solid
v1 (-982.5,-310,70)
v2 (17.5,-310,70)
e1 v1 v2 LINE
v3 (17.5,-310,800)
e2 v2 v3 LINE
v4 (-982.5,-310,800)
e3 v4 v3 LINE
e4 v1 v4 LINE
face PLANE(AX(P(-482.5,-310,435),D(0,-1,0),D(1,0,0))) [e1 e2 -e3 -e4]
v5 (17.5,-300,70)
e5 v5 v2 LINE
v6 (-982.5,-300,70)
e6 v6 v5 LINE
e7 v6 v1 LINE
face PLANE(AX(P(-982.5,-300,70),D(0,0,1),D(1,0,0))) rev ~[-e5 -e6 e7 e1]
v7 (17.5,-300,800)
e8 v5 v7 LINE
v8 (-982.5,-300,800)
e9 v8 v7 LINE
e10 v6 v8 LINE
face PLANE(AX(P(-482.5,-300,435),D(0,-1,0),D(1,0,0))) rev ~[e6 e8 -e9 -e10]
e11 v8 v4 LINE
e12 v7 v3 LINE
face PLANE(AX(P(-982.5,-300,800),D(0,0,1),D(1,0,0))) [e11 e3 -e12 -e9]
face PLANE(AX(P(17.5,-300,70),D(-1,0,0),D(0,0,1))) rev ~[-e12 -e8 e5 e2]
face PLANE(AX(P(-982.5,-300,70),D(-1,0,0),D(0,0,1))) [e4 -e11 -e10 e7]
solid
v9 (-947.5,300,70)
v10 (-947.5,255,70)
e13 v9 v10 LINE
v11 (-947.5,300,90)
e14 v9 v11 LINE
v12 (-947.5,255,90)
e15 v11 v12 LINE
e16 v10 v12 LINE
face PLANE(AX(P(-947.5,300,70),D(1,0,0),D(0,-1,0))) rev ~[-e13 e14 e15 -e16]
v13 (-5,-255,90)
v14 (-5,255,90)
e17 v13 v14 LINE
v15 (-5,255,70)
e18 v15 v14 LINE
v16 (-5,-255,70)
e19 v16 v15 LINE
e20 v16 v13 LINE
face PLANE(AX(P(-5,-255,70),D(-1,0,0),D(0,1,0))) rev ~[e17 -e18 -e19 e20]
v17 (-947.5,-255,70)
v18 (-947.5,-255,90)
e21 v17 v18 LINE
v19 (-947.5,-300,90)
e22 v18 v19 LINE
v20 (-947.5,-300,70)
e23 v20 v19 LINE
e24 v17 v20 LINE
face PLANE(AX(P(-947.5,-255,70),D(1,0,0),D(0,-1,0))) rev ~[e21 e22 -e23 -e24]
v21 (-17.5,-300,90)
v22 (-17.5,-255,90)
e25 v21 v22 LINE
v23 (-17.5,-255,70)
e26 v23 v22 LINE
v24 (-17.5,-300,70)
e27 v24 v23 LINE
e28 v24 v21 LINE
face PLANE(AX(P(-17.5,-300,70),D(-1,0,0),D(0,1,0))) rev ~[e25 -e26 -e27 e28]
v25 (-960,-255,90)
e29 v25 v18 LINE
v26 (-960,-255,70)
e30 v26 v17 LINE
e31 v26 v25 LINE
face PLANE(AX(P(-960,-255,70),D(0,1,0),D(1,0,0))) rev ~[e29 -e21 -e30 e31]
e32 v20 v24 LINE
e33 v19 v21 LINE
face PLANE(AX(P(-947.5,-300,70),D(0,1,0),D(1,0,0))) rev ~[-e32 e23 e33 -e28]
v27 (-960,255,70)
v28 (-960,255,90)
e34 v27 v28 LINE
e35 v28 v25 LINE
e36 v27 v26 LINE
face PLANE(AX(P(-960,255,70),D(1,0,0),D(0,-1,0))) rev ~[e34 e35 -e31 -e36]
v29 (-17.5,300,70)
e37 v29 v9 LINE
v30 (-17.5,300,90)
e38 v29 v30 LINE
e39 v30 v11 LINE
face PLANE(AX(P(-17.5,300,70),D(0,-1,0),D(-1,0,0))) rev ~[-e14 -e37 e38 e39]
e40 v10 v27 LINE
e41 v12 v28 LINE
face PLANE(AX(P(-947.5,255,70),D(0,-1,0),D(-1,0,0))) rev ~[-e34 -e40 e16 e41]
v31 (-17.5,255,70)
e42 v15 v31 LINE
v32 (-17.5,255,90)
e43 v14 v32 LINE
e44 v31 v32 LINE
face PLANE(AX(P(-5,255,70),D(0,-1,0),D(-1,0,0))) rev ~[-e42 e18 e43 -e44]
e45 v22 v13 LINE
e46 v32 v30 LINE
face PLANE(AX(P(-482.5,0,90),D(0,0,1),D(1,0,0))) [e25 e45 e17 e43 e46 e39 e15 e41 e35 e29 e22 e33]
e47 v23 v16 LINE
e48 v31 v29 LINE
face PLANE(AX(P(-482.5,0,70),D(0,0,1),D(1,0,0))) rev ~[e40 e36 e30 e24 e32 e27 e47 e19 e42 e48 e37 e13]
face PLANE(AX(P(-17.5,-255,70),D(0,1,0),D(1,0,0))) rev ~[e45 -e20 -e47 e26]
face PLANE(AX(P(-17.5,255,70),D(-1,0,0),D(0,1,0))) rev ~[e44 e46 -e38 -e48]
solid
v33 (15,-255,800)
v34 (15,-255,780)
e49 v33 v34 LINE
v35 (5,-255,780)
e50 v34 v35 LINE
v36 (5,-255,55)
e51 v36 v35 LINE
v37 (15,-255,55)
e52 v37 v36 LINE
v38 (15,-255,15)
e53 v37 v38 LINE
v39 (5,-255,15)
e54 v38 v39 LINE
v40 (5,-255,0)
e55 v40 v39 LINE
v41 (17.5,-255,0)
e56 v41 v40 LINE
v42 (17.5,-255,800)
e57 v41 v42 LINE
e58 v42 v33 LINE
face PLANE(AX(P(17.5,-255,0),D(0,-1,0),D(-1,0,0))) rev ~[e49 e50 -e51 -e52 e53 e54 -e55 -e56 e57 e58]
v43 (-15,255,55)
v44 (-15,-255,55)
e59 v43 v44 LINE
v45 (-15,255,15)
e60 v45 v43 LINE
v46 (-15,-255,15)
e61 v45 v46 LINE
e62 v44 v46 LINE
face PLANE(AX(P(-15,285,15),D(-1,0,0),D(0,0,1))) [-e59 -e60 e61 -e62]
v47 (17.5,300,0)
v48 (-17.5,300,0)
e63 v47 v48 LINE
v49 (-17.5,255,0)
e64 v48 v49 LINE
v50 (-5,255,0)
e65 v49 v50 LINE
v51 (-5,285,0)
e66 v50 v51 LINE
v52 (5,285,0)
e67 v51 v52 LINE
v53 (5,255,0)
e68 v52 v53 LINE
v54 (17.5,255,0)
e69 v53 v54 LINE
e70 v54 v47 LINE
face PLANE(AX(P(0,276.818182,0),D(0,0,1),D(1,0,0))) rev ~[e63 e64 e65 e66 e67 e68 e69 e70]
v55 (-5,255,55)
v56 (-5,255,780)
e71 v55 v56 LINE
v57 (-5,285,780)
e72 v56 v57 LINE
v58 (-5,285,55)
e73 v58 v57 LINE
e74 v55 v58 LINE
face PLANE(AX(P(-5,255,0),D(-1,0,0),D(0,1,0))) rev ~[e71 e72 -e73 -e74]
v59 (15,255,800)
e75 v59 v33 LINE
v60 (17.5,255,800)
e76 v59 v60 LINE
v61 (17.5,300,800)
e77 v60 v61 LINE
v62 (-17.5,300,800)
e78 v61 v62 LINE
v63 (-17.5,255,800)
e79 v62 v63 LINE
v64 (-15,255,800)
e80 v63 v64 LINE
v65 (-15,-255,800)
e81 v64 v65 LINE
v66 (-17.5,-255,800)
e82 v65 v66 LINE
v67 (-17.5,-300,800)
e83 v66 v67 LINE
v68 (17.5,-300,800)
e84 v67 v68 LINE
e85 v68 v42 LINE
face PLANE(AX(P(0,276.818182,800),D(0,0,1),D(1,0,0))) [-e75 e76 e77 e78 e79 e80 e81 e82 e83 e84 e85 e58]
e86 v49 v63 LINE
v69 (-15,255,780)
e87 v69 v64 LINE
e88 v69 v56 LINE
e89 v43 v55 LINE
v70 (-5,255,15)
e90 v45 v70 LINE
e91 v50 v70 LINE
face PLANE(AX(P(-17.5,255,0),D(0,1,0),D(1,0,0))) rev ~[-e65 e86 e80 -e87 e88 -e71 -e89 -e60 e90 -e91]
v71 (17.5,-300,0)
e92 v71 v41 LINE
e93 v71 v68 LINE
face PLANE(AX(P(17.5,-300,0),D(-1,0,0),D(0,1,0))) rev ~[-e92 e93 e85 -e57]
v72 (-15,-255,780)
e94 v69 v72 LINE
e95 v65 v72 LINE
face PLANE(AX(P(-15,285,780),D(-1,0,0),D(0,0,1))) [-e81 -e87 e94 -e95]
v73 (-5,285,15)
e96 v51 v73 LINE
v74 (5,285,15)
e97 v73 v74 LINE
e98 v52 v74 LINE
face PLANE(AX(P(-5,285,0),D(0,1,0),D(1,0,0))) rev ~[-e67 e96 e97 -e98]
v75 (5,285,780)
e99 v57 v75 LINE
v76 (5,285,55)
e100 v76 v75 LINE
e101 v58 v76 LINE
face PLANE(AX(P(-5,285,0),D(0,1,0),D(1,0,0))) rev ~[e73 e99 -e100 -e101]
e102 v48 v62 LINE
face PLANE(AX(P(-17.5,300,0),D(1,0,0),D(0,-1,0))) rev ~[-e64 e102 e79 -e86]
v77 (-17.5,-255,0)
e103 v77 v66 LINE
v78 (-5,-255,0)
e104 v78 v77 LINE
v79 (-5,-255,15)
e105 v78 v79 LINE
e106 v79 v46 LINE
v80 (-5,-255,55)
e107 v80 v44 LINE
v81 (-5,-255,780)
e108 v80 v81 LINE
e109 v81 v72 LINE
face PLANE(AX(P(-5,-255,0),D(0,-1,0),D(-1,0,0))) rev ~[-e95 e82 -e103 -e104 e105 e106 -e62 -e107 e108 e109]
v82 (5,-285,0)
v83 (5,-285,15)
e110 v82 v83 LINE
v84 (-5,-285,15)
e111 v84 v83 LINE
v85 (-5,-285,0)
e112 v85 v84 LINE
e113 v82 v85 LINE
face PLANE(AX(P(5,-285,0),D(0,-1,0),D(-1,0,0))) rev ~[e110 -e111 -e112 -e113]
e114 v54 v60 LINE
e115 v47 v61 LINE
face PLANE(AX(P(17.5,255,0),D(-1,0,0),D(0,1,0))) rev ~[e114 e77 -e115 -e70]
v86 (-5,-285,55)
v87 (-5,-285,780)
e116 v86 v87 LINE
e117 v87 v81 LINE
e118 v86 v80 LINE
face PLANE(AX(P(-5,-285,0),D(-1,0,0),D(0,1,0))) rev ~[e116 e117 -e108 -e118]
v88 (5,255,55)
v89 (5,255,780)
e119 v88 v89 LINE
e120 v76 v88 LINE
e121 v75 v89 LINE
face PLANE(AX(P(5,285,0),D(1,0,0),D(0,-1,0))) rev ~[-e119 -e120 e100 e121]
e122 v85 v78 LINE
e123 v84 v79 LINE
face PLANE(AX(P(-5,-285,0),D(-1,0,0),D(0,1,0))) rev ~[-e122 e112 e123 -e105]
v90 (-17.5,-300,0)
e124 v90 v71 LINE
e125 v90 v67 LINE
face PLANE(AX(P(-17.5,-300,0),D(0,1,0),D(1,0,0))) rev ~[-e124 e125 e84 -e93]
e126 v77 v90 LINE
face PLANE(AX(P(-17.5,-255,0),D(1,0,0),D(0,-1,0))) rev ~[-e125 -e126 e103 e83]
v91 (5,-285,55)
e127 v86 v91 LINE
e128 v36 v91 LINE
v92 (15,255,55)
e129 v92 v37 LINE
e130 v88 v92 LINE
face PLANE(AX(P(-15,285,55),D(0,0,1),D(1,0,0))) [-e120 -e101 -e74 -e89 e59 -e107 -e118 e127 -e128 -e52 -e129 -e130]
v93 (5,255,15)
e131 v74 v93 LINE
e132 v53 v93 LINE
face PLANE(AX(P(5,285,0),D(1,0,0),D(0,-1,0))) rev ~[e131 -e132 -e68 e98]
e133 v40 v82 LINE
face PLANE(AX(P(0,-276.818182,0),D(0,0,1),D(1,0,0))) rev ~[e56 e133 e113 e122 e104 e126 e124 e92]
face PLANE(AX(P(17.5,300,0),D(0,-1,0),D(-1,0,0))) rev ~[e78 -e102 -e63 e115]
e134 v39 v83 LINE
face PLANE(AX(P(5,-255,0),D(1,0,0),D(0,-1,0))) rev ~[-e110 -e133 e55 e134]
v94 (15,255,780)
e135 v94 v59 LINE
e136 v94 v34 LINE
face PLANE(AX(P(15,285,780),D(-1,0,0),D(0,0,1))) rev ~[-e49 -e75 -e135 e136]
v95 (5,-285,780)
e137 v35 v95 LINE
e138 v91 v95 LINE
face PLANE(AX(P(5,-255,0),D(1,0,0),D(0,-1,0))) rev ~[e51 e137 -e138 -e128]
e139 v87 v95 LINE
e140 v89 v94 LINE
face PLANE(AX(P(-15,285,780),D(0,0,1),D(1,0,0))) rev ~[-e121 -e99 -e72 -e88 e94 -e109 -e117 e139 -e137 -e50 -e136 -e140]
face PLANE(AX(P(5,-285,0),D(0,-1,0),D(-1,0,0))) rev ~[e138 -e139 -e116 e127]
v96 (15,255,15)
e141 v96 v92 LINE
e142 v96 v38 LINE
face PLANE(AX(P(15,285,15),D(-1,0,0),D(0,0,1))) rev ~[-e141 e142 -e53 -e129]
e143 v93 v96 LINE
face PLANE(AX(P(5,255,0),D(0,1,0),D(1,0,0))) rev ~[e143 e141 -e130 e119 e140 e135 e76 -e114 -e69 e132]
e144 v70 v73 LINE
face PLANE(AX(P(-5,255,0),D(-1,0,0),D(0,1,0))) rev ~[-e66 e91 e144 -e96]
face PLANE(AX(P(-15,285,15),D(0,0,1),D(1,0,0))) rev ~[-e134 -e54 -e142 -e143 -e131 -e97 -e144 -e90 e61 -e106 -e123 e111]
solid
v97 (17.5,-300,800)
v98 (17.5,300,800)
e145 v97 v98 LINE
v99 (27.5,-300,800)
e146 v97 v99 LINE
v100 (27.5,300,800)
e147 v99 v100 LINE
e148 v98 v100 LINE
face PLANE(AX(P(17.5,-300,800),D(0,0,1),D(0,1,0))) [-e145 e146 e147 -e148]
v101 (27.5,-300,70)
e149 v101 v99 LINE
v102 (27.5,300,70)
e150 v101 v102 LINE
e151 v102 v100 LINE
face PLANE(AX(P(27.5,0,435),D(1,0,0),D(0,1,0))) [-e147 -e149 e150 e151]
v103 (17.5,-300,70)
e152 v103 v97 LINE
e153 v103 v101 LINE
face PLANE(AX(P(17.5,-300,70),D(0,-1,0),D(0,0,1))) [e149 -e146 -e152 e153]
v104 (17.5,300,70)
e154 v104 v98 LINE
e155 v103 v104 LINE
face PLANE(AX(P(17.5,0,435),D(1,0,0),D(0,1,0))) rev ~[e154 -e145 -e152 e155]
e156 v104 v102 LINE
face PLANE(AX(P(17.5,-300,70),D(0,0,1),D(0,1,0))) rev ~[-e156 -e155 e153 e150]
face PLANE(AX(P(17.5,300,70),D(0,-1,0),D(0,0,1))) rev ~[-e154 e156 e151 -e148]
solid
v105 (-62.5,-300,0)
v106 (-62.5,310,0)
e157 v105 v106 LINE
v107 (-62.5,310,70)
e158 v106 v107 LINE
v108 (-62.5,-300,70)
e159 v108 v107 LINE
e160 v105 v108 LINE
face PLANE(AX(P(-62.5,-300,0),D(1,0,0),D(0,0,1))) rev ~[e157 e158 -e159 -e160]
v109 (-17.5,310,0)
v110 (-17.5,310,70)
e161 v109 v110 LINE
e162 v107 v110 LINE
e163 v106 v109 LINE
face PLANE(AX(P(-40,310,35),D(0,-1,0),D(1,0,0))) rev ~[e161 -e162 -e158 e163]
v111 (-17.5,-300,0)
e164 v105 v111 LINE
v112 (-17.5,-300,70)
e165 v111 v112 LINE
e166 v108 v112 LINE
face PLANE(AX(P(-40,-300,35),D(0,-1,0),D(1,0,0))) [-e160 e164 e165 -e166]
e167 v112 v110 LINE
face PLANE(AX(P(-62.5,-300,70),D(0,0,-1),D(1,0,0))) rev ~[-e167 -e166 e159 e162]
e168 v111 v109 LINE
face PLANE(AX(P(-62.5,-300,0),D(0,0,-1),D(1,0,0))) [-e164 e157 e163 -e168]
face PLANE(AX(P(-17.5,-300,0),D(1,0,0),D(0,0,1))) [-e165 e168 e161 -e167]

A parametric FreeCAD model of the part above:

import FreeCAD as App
import Part
import Sketcher


def add_polygon(sketch, points):
    """Adds a closed chain of lines whose ends are joined by coincident constraints."""
    first, n = sketch.GeometryCount, len(points)
    for a, b in zip(points, points[1:] + points[:1]):
        sketch.addGeometry(Part.LineSegment(App.Vector(*a, 0), App.Vector(*b, 0)), False)
    for i in range(n):
        sketch.addConstraint(Sketcher.Constraint("Coincident", first + i, 2, first + (i + 1) % n, 1))

doc = App.newDocument("Part")
body = doc.addObject("PartDesign::Body", "Body")
body.AllowCompound = True

# Sketch on XY plane
sketch1 = body.newObject("Sketcher::SketchObject", "Sketch")
sketch1.AttachmentSupport = (doc.getObject("XY_Plane"), [""])
sketch1.MapMode = "FlatFace"
add_polygon(sketch1, [(17.5, 300), (-17.5, 300), (-17.5, 255), (-5, 255), (-5, 285), (5, 285), (5, 255), (17.5, 255)])  # lines 0-7
add_polygon(sketch1, [(-5, -255), (-17.5, -255), (-17.5, -300), (17.5, -300), (17.5, -255), (5, -255), (5, -285), (-5, -285)])  # lines 8-15
sketch1.addConstraint([
    Sketcher.Constraint("Horizontal", 0),
    Sketcher.Constraint("Vertical", 1),
    Sketcher.Constraint("Horizontal", 2),
    Sketcher.Constraint("Vertical", 3),
    Sketcher.Constraint("Horizontal", 4),
    Sketcher.Constraint("Vertical", 5),
    Sketcher.Constraint("Horizontal", 6),
    Sketcher.Constraint("Vertical", 7),
    Sketcher.Constraint("Horizontal", 8),
    Sketcher.Constraint("Vertical", 9),
    Sketcher.Constraint("Horizontal", 10),
    Sketcher.Constraint("Vertical", 11),
    Sketcher.Constraint("Horizontal", 12),
    Sketcher.Constraint("Vertical", 13),
    Sketcher.Constraint("Horizontal", 14),
    Sketcher.Constraint("Vertical", 15),
    Sketcher.Constraint("Symmetric", 6, 2, 8, 2, -1, 1),
    Sketcher.Constraint("Symmetric", 0, 2, 10, 2, -1, 1),
    Sketcher.Constraint("Symmetric", 2, 2, 12, 2, -1, 1),
    Sketcher.Constraint("Symmetric", 4, 2, 14, 2, -1, 1),
    Sketcher.Constraint("Symmetric", 2, 2, 5, 2, -2),
    Sketcher.Constraint("Vertical", 1, 2, 8, 2),
    Sketcher.Constraint("DistanceX", 0, 2, 0, 1, 35.0),
    Sketcher.Constraint("DistanceX", 4, 1, 4, 2, 10.0),
    Sketcher.Constraint("DistanceY", 1, 2, 1, 1, 45.0),
    Sketcher.Constraint("DistanceY", 3, 1, 3, 2, 30.0),
    Sketcher.Constraint("DistanceY", -1, 1, 0, 2, 300.0),
])
pad1 = body.newObject("PartDesign::Pad", "Pad")
pad1.Profile = sketch1
pad1.Length = 800

# Sketch on XZ plane
sketch2 = body.newObject("Sketcher::SketchObject", "Sketch001")
sketch2.AttachmentSupport = (doc.getObject("XZ_Plane"), [""])
sketch2.MapMode = "FlatFace"
sketch2.AttachmentOffset = App.Placement(App.Vector(0, 0, -285), App.Rotation())
add_polygon(sketch2, [(-15, 800), (-15, 780), (15, 780), (15, 800)])  # lines 0-3
add_polygon(sketch2, [(-15, 55), (-15, 15), (15, 15), (15, 55)])  # lines 4-7
sketch2.addConstraint([
    Sketcher.Constraint("Vertical", 0),
    Sketcher.Constraint("Horizontal", 1),
    Sketcher.Constraint("Vertical", 2),
    Sketcher.Constraint("Horizontal", 3),
    Sketcher.Constraint("Vertical", 4),
    Sketcher.Constraint("Horizontal", 5),
    Sketcher.Constraint("Vertical", 6),
    Sketcher.Constraint("Horizontal", 7),
    Sketcher.Constraint("Vertical", 3, 2, 4, 2),
    Sketcher.Constraint("Vertical", 2, 2, 5, 2),
    Sketcher.Constraint("DistanceX", 1, 1, 1, 2, 30.0),
    Sketcher.Constraint("DistanceY", 0, 2, 0, 1, 20.0),
    Sketcher.Constraint("DistanceY", 4, 2, 4, 1, 40.0),
    Sketcher.Constraint("DistanceX", 0, 2, -1, 1, 15.0),
    Sketcher.Constraint("DistanceY", -1, 1, 0, 2, 780.0),
    Sketcher.Constraint("DistanceY", -1, 1, 4, 2, 15.0),
])
pad2 = body.newObject("PartDesign::Pad", "Pad001")
pad2.Profile = sketch2
pad2.Type = "UpToLast"
body2 = doc.addObject("PartDesign::Body", "Body001")

# Sketch on XZ plane
sketch3 = body2.newObject("Sketcher::SketchObject", "Sketch002")
sketch3.AttachmentSupport = (doc.getObject("XZ_Plane001"), [""])
sketch3.MapMode = "FlatFace"
sketch3.AttachmentOffset = App.Placement(App.Vector(0, 0, 300), App.Rotation())
add_polygon(sketch3, [(-62.5, 70), (-62.5, 0), (-17.5, 0), (-17.5, 70)])  # lines 0-3
sketch3.addConstraint([
    Sketcher.Constraint("Vertical", 0),
    Sketcher.Constraint("Horizontal", 1),
    Sketcher.Constraint("Vertical", 2),
    Sketcher.Constraint("Horizontal", 3),
    Sketcher.Constraint("PointOnObject", 0, 2, -1),
    Sketcher.Constraint("DistanceX", 1, 1, 1, 2, 45.0),
    Sketcher.Constraint("DistanceY", 0, 2, 0, 1, 70.0),
    Sketcher.Constraint("DistanceX", 0, 2, -1, 1, 62.5),
])
pad3 = body2.newObject("PartDesign::Pad", "Pad002")
pad3.Profile = sketch3
pad3.Length = 610
pad3.Reversed = True
body3 = doc.addObject("PartDesign::Body", "Body002")

# Sketch on XZ plane
sketch4 = body3.newObject("Sketcher::SketchObject", "Sketch003")
sketch4.AttachmentSupport = (doc.getObject("XZ_Plane002"), [""])
sketch4.MapMode = "FlatFace"
sketch4.AttachmentOffset = App.Placement(App.Vector(0, 0, 300), App.Rotation())
add_polygon(sketch4, [(-982.5, 800), (-982.5, 70), (17.5, 70), (17.5, 800)])  # lines 0-3
sketch4.addConstraint([
    Sketcher.Constraint("Vertical", 0),
    Sketcher.Constraint("Horizontal", 1),
    Sketcher.Constraint("Vertical", 2),
    Sketcher.Constraint("Horizontal", 3),
    Sketcher.Constraint("DistanceX", 1, 1, 1, 2, 1000.0),
    Sketcher.Constraint("DistanceY", 0, 2, 0, 1, 730.0),
    Sketcher.Constraint("DistanceY", -1, 1, 0, 2, 70.0),
    Sketcher.Constraint("DistanceX", 0, 2, -1, 1, 982.5),
])
pad4 = body3.newObject("PartDesign::Pad", "Pad003")
pad4.Profile = sketch4
pad4.Length = 10
body4 = doc.addObject("PartDesign::Body", "Body003")

# Sketch on YZ plane
sketch5 = body4.newObject("Sketcher::SketchObject", "Sketch004")
sketch5.AttachmentSupport = (doc.getObject("YZ_Plane003"), [""])
sketch5.MapMode = "FlatFace"
sketch5.AttachmentOffset = App.Placement(App.Vector(0, 0, 17.5), App.Rotation())
add_polygon(sketch5, [(-300, 800), (-300, 70), (300, 70), (300, 800)])  # lines 0-3
sketch5.addConstraint([
    Sketcher.Constraint("Vertical", 0),
    Sketcher.Constraint("Horizontal", 1),
    Sketcher.Constraint("Vertical", 2),
    Sketcher.Constraint("Horizontal", 3),
    Sketcher.Constraint("DistanceX", 1, 1, 1, 2, 600.0),
    Sketcher.Constraint("DistanceY", 0, 2, 0, 1, 730.0),
    Sketcher.Constraint("DistanceX", 0, 2, -1, 1, 300.0),
    Sketcher.Constraint("DistanceY", -1, 1, 0, 2, 70.0),
])
pad5 = body4.newObject("PartDesign::Pad", "Pad004")
pad5.Profile = sketch5
pad5.Length = 10
body5 = doc.addObject("PartDesign::Body", "Body004")

# Sketch on XY plane
sketch6 = body5.newObject("Sketcher::SketchObject", "Sketch005")
sketch6.AttachmentSupport = (doc.getObject("XY_Plane004"), [""])
sketch6.MapMode = "FlatFace"
sketch6.AttachmentOffset = App.Placement(App.Vector(0, 0, 70), App.Rotation())
add_polygon(sketch6, [(-17.5, -255), (-5, -255), (-5, 255), (-17.5, 255), (-17.5, 300), (-947.5, 300), (-947.5, 255), (-960, 255), (-960, -255), (-947.5, -255), (-947.5, -300), (-17.5, -300)])  # lines 0-11
sketch6.addConstraint([
    Sketcher.Constraint("Horizontal", 0),
    Sketcher.Constraint("Vertical", 1),
    Sketcher.Constraint("Horizontal", 2),
    Sketcher.Constraint("Vertical", 3),
    Sketcher.Constraint("Horizontal", 4),
    Sketcher.Constraint("Vertical", 5),
    Sketcher.Constraint("Horizontal", 6),
    Sketcher.Constraint("Vertical", 7),
    Sketcher.Constraint("Horizontal", 8),
    Sketcher.Constraint("Vertical", 9),
    Sketcher.Constraint("Horizontal", 10),
    Sketcher.Constraint("Vertical", 11),
    Sketcher.Constraint("Symmetric", 5, 2, 8, 2, -1),
    Sketcher.Constraint("Symmetric", 3, 2, 10, 2, -1),
    Sketcher.Constraint("Horizontal", 2, 2, 5, 2),
    Sketcher.Constraint("Horizontal", 0, 2, 7, 2),
    Sketcher.Constraint("Equal", 2, 6),
    Sketcher.Constraint("DistanceX", 4, 2, 4, 1, 930.0),
    Sketcher.Constraint("DistanceY", 1, 1, 1, 2, 510.0),
    Sketcher.Constraint("DistanceY", 3, 1, 3, 2, 45.0),
    Sketcher.Constraint("DistanceX", 0, 1, 0, 2, 12.5),
    Sketcher.Constraint("DistanceX", 0, 2, -1, 1, 5.0),
])
pad6 = body5.newObject("PartDesign::Pad", "Pad005")
pad6.Profile = sketch6
pad6.Length = 20

doc.recompute()
